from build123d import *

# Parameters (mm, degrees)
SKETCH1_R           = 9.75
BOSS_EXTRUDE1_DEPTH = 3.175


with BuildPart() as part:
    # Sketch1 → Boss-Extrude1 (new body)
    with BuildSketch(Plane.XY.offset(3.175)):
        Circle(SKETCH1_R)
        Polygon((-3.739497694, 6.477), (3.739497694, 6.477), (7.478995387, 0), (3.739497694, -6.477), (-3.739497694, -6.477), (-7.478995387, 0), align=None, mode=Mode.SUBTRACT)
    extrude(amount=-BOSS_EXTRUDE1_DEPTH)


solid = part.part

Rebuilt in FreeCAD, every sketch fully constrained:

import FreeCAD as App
import Part
import Sketcher

V = App.Vector
Q = App.Units.Quantity

doc = App.newDocument("Part")
body = doc.addObject("PartDesign::Body", "Body")

sketch1 = body.newObject("Sketcher::SketchObject", "Sketch")
sketch1.AttachmentSupport = (doc.getObject("XY_Plane"), [""])
sketch1.MapMode = "FlatFace"
sketch1.AttachmentOffset = App.Placement(V(0, 0, 3.175), App.Rotation())
sketch1.addGeometry([
    Part.Circle(V(0, 0, 0), V(0, 0, 1), 9.75),
    Part.LineSegment(V(-7.478995, 0, 0), V(-3.739498, 6.477, 0)),
    Part.LineSegment(V(-3.739498, 6.477, 0), V(3.739498, 6.477, 0)),
    Part.LineSegment(V(3.739498, 6.477, 0), V(7.478995, 0, 0)),
    Part.LineSegment(V(7.478995, 0, 0), V(3.739498, -6.477, 0)),
    Part.LineSegment(V(3.739498, -6.477, 0), V(-3.739498, -6.477, 0)),
    Part.LineSegment(V(-3.739498, -6.477, 0), V(-7.478995, 0, 0)),
], False)
sketch1.addConstraint([
    Sketcher.Constraint("Coincident", 1, 2, 2, 1),
    Sketcher.Constraint("Coincident", 2, 2, 3, 1),
    Sketcher.Constraint("Coincident", 3, 2, 4, 1),
    Sketcher.Constraint("Coincident", 4, 2, 5, 1),
    Sketcher.Constraint("Coincident", 5, 2, 6, 1),
    Sketcher.Constraint("Coincident", 6, 2, 1, 1),
    Sketcher.Constraint("Horizontal", 2),
    Sketcher.Constraint("Horizontal", 5),
    Sketcher.Constraint("Coincident", 0, 3, -1, 1),
    Sketcher.Constraint("Symmetric", 1, 2, 4, 2, -1, 1),
    Sketcher.Constraint("Symmetric", 3, 2, 6, 2, -1, 1),
    Sketcher.Constraint("PointOnObject", 3, 2, -1),
    Sketcher.Constraint("Parallel", 3, 6),
    Sketcher.Constraint("Vertical", 2, 2, 4, 2),
    Sketcher.Constraint("Diameter", 0, Q("19.5 mm")),
    Sketcher.Constraint("Angle", 1, Q("60 deg")),
    Sketcher.Constraint("DistanceY", -1, 1, 1, 2, Q("6.477 mm")),
    Sketcher.Constraint("DistanceX", 2, 1, 2, 2, Q("7.478995 mm")),
])
pad1 = body.newObject("PartDesign::Pad", "Pad")
pad1.Profile = sketch1
pad1.Length = 3.175
pad1.Reversed = True

doc.recompute()
